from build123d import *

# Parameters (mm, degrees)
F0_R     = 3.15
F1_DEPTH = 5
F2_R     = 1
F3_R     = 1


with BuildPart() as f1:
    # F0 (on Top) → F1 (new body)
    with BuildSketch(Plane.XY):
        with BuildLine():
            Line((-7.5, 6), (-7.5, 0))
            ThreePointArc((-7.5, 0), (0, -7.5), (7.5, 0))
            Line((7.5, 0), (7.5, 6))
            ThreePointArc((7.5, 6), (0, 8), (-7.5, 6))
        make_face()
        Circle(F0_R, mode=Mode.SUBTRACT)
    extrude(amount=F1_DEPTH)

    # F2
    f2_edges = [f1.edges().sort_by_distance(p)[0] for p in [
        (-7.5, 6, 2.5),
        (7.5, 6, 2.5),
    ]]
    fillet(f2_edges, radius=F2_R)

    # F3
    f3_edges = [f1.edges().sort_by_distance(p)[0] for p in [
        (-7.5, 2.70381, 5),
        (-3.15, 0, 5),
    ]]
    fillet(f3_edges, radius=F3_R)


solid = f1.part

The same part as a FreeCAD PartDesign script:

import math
import FreeCAD as App
import Part
import Sketcher


def edges_at(feature, points):
    """Names of the edges that pass closest to the given points."""
    edges = feature.Shape.Edges
    near = lambda p: min(range(len(edges)), key=lambda i: edges[i].distToShape(Part.Vertex(*p))[0])
    return sorted({f"Edge{near(p) + 1}" for p in points})

doc = App.newDocument("Part")
params = doc.addObject("Spreadsheet::Sheet", "Params")
for row, (alias, value) in enumerate([
    ("sketch1_diameter", "6.3 mm"),
    ("sketch1_radius", "7.5 mm"),
    ("sketch1_height", "6 mm"),
    ("pad1_length", "5 mm"),
    ("fillet_radius", "1 mm"),
    ("fillet2_radius", "1 mm"),
], start=1):
    params.set(f"A{row}", alias)
    params.set(f"B{row}", "=" + value)
    params.setAlias(f"B{row}", alias)

body = doc.addObject("PartDesign::Body", "Body")

# Sketch on XY plane
sketch1 = body.newObject("Sketcher::SketchObject", "Sketch")
sketch1.AttachmentSupport = (doc.getObject("XY_Plane"), [""])
sketch1.MapMode = "FlatFace"
sketch1.addGeometry([
    Part.LineSegment(App.Vector(-7.5, 6, 0), App.Vector(-7.5, 0, 0)),  # 0
    Part.ArcOfCircle(Part.Circle(App.Vector(0, 0, 0), App.Vector(0, 0, 1), 7.5), math.radians(180), math.radians(360)),  # 1
    Part.LineSegment(App.Vector(7.5, 0, 0), App.Vector(7.5, 6, 0)),  # 2
    Part.ArcOfCircle(Part.Circle(App.Vector(0, -7.0625, 0), App.Vector(0, 0, 1), 15.0625), math.radians(60.137166), math.radians(119.862834)),  # 3
    Part.Circle(App.Vector(0, 0, 0), App.Vector(0, 0, 1), 3.15),  # 4
], False)
sketch1.addConstraint([
    Sketcher.Constraint("Tangent", 0, 2, 1, 1),
    Sketcher.Constraint("Tangent", 1, 2, 2, 1),
    Sketcher.Constraint("Coincident", 2, 2, 3, 1),
    Sketcher.Constraint("Coincident", 3, 2, 0, 1),
    Sketcher.Constraint("Vertical", 0),
    Sketcher.Constraint("Vertical", 2),
    Sketcher.Constraint("Coincident", 1, 3, -1, 1),
    Sketcher.Constraint("Coincident", 4, 3, -1, 1),
    Sketcher.Constraint("PointOnObject", 3, 3, -2),
    Sketcher.Constraint("Diameter", 4, 6.3),
    Sketcher.Constraint("Radius", 1, 7.5),
    Sketcher.Constraint("DistanceY", 0, 2, 0, 1, 6.0),
    Sketcher.Constraint("Radius", 3, 15.0625),
])
sketch1.setExpression("Constraints[9]", "Params.sketch1_diameter")
sketch1.setExpression("Constraints[10]", "Params.sketch1_radius")
sketch1.setExpression("Constraints[11]", "Params.sketch1_height")
pad1 = body.newObject("PartDesign::Pad", "Pad")
pad1.Profile = sketch1
pad1.setExpression("Length", "Params.pad1_length")
doc.recompute()

fillet = body.newObject("PartDesign::Fillet", "Fillet")
fillet.Base = (pad1, edges_at(pad1, [(-7.5, 6, 2.5), (7.5, 6, 2.5)]))
fillet.setExpression("Radius", "Params.fillet_radius")
doc.recompute()

fillet2 = body.newObject("PartDesign::Fillet", "Fillet001")
fillet2.Base = (fillet, edges_at(fillet, [(-7.5, 2.704, 5), (-3.15, 0, 5)]))
fillet2.setExpression("Radius", "Params.fillet2_radius")

doc.recompute()
